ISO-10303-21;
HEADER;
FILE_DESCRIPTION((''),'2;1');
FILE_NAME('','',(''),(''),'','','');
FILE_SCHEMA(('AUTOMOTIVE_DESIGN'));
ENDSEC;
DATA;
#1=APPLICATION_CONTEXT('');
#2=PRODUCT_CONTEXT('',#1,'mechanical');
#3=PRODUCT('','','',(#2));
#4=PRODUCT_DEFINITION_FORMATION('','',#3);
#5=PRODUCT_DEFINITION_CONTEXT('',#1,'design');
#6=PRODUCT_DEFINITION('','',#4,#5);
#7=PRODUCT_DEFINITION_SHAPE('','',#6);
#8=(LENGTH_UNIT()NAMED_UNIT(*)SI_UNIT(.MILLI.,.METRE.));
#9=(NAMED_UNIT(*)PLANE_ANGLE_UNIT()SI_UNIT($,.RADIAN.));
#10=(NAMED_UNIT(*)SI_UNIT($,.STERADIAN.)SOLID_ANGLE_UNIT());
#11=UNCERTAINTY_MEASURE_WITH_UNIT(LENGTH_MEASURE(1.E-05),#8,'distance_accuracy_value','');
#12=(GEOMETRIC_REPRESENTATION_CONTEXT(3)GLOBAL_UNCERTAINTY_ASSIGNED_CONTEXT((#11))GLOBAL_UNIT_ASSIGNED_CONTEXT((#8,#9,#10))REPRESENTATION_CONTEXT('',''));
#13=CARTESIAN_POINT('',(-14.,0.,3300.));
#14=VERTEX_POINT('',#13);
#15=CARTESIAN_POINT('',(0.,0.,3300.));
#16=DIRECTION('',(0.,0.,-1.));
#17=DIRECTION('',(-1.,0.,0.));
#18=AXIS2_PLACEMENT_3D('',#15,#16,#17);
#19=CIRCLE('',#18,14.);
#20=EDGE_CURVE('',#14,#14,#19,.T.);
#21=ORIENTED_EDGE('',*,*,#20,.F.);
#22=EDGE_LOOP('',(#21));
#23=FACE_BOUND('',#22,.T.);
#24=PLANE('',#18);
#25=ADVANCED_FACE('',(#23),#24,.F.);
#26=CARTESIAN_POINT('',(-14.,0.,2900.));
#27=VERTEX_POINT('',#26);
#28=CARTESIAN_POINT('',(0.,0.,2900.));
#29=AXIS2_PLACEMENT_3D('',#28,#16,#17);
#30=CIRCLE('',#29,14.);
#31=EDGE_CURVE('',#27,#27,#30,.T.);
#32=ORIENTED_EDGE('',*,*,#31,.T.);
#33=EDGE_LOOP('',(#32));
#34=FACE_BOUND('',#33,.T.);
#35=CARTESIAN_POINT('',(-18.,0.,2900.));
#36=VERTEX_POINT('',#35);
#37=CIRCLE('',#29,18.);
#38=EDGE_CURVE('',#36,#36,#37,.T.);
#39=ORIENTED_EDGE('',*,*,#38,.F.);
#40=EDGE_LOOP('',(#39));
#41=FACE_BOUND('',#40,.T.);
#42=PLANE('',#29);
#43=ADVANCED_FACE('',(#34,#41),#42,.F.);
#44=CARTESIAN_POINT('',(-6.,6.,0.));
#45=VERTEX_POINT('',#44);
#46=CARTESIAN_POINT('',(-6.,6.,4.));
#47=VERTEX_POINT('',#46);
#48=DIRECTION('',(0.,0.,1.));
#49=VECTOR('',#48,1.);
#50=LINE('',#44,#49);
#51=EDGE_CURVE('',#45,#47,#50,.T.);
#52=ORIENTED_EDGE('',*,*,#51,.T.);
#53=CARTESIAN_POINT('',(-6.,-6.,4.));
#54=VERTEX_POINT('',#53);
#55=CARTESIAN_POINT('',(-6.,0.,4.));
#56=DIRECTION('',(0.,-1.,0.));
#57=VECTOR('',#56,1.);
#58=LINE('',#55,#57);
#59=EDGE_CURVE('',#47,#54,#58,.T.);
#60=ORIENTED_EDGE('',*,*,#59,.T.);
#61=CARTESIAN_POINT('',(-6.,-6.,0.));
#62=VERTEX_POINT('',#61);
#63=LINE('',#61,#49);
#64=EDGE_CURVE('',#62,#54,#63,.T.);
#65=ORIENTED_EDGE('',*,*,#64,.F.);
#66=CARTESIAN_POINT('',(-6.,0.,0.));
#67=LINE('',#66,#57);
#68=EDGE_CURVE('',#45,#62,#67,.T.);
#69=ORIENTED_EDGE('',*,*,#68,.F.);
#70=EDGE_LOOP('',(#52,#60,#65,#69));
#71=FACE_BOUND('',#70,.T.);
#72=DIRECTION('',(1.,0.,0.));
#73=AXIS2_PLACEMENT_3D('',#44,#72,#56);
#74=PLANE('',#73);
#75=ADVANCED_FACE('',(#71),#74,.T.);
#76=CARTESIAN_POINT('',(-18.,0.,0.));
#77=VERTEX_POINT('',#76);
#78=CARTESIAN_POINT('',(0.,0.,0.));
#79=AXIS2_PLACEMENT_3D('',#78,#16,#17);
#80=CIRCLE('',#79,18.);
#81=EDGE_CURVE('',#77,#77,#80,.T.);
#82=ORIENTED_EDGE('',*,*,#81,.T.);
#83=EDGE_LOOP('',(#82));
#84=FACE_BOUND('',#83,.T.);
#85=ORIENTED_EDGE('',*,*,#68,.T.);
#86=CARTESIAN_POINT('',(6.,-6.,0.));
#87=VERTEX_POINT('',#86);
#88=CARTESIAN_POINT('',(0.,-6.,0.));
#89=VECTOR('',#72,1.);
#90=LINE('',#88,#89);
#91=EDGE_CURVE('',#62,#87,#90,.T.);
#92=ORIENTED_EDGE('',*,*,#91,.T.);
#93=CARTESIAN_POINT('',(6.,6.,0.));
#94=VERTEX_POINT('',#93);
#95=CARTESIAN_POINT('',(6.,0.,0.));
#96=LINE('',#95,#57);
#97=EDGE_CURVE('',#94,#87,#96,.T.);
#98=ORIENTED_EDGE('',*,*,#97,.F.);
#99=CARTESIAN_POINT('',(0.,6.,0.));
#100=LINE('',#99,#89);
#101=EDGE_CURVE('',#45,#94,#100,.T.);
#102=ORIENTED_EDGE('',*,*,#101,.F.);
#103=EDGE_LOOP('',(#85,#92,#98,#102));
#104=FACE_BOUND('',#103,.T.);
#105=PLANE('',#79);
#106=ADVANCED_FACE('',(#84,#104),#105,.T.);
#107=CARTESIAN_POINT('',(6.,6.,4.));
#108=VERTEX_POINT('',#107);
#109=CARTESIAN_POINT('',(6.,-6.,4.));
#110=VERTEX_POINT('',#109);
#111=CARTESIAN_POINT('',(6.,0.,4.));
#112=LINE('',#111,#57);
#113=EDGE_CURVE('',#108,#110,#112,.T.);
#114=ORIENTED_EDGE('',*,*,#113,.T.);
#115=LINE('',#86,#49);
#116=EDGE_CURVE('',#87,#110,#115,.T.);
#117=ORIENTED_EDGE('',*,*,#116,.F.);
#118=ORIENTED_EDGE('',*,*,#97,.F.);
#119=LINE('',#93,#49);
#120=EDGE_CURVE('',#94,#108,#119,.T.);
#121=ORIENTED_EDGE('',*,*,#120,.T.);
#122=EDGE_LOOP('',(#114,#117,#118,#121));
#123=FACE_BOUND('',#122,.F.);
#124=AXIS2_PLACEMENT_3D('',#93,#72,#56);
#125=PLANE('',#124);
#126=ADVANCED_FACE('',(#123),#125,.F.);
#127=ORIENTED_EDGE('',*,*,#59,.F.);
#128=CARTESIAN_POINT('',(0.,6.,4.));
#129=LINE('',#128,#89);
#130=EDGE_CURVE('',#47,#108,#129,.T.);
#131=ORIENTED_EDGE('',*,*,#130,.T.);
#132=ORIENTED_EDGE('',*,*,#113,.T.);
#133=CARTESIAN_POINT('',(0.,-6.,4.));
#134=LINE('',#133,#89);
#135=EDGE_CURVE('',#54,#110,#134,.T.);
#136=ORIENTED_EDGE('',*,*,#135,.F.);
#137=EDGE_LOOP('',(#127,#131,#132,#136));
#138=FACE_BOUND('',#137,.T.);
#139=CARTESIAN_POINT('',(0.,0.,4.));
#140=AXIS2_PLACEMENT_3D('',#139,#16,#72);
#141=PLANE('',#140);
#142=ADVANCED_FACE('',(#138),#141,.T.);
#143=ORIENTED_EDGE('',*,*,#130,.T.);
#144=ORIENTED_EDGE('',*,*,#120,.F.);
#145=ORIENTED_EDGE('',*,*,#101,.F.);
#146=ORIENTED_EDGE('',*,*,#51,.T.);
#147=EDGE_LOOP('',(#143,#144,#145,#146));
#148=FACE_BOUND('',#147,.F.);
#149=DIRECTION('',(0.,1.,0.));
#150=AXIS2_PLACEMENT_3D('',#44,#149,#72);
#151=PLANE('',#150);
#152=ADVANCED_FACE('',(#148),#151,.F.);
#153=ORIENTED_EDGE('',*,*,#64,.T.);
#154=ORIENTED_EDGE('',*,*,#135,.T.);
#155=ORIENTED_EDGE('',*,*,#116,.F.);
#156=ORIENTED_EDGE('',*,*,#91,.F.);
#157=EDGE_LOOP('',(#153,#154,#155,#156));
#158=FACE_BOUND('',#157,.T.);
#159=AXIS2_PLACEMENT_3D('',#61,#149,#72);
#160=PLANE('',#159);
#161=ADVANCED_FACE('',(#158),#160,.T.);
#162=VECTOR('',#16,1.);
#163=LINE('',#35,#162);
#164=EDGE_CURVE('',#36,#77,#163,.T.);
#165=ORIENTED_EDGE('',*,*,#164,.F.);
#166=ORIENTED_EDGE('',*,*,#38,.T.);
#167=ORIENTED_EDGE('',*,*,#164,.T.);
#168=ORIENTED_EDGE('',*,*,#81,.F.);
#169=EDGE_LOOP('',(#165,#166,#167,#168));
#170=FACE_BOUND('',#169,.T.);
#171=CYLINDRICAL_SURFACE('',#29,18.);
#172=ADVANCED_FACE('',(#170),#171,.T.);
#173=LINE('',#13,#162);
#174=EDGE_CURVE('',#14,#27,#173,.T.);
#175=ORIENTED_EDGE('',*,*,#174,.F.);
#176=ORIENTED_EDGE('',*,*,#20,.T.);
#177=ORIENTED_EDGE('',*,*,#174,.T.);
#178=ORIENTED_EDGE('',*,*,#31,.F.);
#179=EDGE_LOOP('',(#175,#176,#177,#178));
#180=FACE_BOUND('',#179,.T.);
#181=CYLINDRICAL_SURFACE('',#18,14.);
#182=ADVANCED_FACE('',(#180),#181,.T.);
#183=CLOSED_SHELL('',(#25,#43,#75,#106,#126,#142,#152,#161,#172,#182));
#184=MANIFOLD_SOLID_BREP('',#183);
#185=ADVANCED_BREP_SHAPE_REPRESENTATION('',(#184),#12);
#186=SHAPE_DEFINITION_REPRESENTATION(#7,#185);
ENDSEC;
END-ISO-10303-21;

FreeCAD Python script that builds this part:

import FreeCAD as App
import Part
import Sketcher

V = App.Vector
Q = App.Units.Quantity

doc = App.newDocument("Part")
params = doc.addObject("Spreadsheet::Sheet", "Params")
for row, (alias, value) in enumerate([
    ("sketch1_width", "14 mm"),
    ("sketch1_width2", "4 mm"),
    ("sketch1_height", "3300 mm"),
    ("sketch1_height2", "400 mm"),
    ("revolution_angle", "360 deg"),
    ("sketch2_width", "12 mm"),
    ("pocket1_length", "4 mm"),
], start=1):
    params.set(f"A{row}", alias)
    params.set(f"B{row}", "=" + value)
    params.setAlias(f"B{row}", alias)

body = doc.addObject("PartDesign::Body", "Body")

sketch1 = doc.addObject("Sketcher::SketchObject", "Sketch")
body.addObject(sketch1)
sketch1.AttachmentSupport = (doc.XZ_Plane, [""])
sketch1.MapMode = "FlatFace"
sketch1.addGeometry([
    Part.LineSegment(V(0, 0, 0), V(0, 3300, 0)),
    Part.LineSegment(V(0, 3300, 0), V(-14, 3300, 0)),
    Part.LineSegment(V(-14, 3300, 0), V(-14, 2900, 0)),
    Part.LineSegment(V(-14, 2900, 0), V(-18, 2900, 0)),
    Part.LineSegment(V(-18, 2900, 0), V(-18, 0, 0)),
    Part.LineSegment(V(-18, 0, 0), V(0, 0, 0)),
], False)
sketch1.addConstraint([
    Sketcher.Constraint("Coincident", 0, 2, 1, 1),
    Sketcher.Constraint("Coincident", 1, 2, 2, 1),
    Sketcher.Constraint("Coincident", 2, 2, 3, 1),
    Sketcher.Constraint("Coincident", 3, 2, 4, 1),
    Sketcher.Constraint("Coincident", 4, 2, 5, 1),
    Sketcher.Constraint("Coincident", 5, 2, 0, 1),
    Sketcher.Constraint("Vertical", 0),
    Sketcher.Constraint("Horizontal", 1),
    Sketcher.Constraint("Vertical", 2),
    Sketcher.Constraint("Horizontal", 3),
    Sketcher.Constraint("Vertical", 4),
    Sketcher.Constraint("Horizontal", 5),
    Sketcher.Constraint("Coincident", 5, 2, -1, 1),
    Sketcher.Constraint("DistanceX", 1, 2, 1, 1, Q("14 mm")),
    Sketcher.Constraint("DistanceX", 3, 2, 3, 1, Q("4 mm")),
    Sketcher.Constraint("DistanceY", 0, 1, 0, 2, Q("3300 mm")),
    Sketcher.Constraint("DistanceY", 2, 2, 2, 1, Q("400 mm")),
])
sketch1.setExpression("Constraints[13]", "Params.sketch1_width")
sketch1.setExpression("Constraints[14]", "Params.sketch1_width2")
sketch1.setExpression("Constraints[15]", "Params.sketch1_height")
sketch1.setExpression("Constraints[16]", "Params.sketch1_height2")
revolution = doc.addObject("PartDesign::Revolution", "Revolution")
body.addObject(revolution)
revolution.Profile = sketch1
revolution.ReferenceAxis = (sketch1, ["V_Axis"])
revolution.setExpression("Angle", "Params.revolution_angle")

sketch2 = doc.addObject("Sketcher::SketchObject", "Sketch001")
body.addObject(sketch2)
sketch2.AttachmentSupport = (doc.XY_Plane, [""])
sketch2.MapMode = "FlatFace"
sketch2.addGeometry([
    Part.LineSegment(V(-6, -6, 0), V(-6, 6, 0)),
    Part.LineSegment(V(-6, 6, 0), V(6, 6, 0)),
    Part.LineSegment(V(6, 6, 0), V(6, -6, 0)),
    Part.LineSegment(V(6, -6, 0), V(-6, -6, 0)),
], False)
sketch2.addConstraint([
    Sketcher.Constraint("Coincident", 0, 2, 1, 1),
    Sketcher.Constraint("Coincident", 1, 2, 2, 1),
    Sketcher.Constraint("Coincident", 2, 2, 3, 1),
    Sketcher.Constraint("Coincident", 3, 2, 0, 1),
    Sketcher.Constraint("Vertical", 0),
    Sketcher.Constraint("Horizontal", 1),
    Sketcher.Constraint("Vertical", 2),
    Sketcher.Constraint("Horizontal", 3),
    Sketcher.Constraint("Symmetric", 0, 2, 2, 2, -1, 1),
    Sketcher.Constraint("Equal", 3, 0),
    Sketcher.Constraint("DistanceX", 1, 1, 1, 2, Q("12 mm")),
])
sketch2.setExpression("Constraints[10]", "Params.sketch2_width")
pocket1 = doc.addObject("PartDesign::Pocket", "Pocket")
body.addObject(pocket1)
pocket1.Profile = sketch2
pocket1.setExpression("Length", "Params.pocket1_length")
pocket1.Reversed = True

doc.recompute()
